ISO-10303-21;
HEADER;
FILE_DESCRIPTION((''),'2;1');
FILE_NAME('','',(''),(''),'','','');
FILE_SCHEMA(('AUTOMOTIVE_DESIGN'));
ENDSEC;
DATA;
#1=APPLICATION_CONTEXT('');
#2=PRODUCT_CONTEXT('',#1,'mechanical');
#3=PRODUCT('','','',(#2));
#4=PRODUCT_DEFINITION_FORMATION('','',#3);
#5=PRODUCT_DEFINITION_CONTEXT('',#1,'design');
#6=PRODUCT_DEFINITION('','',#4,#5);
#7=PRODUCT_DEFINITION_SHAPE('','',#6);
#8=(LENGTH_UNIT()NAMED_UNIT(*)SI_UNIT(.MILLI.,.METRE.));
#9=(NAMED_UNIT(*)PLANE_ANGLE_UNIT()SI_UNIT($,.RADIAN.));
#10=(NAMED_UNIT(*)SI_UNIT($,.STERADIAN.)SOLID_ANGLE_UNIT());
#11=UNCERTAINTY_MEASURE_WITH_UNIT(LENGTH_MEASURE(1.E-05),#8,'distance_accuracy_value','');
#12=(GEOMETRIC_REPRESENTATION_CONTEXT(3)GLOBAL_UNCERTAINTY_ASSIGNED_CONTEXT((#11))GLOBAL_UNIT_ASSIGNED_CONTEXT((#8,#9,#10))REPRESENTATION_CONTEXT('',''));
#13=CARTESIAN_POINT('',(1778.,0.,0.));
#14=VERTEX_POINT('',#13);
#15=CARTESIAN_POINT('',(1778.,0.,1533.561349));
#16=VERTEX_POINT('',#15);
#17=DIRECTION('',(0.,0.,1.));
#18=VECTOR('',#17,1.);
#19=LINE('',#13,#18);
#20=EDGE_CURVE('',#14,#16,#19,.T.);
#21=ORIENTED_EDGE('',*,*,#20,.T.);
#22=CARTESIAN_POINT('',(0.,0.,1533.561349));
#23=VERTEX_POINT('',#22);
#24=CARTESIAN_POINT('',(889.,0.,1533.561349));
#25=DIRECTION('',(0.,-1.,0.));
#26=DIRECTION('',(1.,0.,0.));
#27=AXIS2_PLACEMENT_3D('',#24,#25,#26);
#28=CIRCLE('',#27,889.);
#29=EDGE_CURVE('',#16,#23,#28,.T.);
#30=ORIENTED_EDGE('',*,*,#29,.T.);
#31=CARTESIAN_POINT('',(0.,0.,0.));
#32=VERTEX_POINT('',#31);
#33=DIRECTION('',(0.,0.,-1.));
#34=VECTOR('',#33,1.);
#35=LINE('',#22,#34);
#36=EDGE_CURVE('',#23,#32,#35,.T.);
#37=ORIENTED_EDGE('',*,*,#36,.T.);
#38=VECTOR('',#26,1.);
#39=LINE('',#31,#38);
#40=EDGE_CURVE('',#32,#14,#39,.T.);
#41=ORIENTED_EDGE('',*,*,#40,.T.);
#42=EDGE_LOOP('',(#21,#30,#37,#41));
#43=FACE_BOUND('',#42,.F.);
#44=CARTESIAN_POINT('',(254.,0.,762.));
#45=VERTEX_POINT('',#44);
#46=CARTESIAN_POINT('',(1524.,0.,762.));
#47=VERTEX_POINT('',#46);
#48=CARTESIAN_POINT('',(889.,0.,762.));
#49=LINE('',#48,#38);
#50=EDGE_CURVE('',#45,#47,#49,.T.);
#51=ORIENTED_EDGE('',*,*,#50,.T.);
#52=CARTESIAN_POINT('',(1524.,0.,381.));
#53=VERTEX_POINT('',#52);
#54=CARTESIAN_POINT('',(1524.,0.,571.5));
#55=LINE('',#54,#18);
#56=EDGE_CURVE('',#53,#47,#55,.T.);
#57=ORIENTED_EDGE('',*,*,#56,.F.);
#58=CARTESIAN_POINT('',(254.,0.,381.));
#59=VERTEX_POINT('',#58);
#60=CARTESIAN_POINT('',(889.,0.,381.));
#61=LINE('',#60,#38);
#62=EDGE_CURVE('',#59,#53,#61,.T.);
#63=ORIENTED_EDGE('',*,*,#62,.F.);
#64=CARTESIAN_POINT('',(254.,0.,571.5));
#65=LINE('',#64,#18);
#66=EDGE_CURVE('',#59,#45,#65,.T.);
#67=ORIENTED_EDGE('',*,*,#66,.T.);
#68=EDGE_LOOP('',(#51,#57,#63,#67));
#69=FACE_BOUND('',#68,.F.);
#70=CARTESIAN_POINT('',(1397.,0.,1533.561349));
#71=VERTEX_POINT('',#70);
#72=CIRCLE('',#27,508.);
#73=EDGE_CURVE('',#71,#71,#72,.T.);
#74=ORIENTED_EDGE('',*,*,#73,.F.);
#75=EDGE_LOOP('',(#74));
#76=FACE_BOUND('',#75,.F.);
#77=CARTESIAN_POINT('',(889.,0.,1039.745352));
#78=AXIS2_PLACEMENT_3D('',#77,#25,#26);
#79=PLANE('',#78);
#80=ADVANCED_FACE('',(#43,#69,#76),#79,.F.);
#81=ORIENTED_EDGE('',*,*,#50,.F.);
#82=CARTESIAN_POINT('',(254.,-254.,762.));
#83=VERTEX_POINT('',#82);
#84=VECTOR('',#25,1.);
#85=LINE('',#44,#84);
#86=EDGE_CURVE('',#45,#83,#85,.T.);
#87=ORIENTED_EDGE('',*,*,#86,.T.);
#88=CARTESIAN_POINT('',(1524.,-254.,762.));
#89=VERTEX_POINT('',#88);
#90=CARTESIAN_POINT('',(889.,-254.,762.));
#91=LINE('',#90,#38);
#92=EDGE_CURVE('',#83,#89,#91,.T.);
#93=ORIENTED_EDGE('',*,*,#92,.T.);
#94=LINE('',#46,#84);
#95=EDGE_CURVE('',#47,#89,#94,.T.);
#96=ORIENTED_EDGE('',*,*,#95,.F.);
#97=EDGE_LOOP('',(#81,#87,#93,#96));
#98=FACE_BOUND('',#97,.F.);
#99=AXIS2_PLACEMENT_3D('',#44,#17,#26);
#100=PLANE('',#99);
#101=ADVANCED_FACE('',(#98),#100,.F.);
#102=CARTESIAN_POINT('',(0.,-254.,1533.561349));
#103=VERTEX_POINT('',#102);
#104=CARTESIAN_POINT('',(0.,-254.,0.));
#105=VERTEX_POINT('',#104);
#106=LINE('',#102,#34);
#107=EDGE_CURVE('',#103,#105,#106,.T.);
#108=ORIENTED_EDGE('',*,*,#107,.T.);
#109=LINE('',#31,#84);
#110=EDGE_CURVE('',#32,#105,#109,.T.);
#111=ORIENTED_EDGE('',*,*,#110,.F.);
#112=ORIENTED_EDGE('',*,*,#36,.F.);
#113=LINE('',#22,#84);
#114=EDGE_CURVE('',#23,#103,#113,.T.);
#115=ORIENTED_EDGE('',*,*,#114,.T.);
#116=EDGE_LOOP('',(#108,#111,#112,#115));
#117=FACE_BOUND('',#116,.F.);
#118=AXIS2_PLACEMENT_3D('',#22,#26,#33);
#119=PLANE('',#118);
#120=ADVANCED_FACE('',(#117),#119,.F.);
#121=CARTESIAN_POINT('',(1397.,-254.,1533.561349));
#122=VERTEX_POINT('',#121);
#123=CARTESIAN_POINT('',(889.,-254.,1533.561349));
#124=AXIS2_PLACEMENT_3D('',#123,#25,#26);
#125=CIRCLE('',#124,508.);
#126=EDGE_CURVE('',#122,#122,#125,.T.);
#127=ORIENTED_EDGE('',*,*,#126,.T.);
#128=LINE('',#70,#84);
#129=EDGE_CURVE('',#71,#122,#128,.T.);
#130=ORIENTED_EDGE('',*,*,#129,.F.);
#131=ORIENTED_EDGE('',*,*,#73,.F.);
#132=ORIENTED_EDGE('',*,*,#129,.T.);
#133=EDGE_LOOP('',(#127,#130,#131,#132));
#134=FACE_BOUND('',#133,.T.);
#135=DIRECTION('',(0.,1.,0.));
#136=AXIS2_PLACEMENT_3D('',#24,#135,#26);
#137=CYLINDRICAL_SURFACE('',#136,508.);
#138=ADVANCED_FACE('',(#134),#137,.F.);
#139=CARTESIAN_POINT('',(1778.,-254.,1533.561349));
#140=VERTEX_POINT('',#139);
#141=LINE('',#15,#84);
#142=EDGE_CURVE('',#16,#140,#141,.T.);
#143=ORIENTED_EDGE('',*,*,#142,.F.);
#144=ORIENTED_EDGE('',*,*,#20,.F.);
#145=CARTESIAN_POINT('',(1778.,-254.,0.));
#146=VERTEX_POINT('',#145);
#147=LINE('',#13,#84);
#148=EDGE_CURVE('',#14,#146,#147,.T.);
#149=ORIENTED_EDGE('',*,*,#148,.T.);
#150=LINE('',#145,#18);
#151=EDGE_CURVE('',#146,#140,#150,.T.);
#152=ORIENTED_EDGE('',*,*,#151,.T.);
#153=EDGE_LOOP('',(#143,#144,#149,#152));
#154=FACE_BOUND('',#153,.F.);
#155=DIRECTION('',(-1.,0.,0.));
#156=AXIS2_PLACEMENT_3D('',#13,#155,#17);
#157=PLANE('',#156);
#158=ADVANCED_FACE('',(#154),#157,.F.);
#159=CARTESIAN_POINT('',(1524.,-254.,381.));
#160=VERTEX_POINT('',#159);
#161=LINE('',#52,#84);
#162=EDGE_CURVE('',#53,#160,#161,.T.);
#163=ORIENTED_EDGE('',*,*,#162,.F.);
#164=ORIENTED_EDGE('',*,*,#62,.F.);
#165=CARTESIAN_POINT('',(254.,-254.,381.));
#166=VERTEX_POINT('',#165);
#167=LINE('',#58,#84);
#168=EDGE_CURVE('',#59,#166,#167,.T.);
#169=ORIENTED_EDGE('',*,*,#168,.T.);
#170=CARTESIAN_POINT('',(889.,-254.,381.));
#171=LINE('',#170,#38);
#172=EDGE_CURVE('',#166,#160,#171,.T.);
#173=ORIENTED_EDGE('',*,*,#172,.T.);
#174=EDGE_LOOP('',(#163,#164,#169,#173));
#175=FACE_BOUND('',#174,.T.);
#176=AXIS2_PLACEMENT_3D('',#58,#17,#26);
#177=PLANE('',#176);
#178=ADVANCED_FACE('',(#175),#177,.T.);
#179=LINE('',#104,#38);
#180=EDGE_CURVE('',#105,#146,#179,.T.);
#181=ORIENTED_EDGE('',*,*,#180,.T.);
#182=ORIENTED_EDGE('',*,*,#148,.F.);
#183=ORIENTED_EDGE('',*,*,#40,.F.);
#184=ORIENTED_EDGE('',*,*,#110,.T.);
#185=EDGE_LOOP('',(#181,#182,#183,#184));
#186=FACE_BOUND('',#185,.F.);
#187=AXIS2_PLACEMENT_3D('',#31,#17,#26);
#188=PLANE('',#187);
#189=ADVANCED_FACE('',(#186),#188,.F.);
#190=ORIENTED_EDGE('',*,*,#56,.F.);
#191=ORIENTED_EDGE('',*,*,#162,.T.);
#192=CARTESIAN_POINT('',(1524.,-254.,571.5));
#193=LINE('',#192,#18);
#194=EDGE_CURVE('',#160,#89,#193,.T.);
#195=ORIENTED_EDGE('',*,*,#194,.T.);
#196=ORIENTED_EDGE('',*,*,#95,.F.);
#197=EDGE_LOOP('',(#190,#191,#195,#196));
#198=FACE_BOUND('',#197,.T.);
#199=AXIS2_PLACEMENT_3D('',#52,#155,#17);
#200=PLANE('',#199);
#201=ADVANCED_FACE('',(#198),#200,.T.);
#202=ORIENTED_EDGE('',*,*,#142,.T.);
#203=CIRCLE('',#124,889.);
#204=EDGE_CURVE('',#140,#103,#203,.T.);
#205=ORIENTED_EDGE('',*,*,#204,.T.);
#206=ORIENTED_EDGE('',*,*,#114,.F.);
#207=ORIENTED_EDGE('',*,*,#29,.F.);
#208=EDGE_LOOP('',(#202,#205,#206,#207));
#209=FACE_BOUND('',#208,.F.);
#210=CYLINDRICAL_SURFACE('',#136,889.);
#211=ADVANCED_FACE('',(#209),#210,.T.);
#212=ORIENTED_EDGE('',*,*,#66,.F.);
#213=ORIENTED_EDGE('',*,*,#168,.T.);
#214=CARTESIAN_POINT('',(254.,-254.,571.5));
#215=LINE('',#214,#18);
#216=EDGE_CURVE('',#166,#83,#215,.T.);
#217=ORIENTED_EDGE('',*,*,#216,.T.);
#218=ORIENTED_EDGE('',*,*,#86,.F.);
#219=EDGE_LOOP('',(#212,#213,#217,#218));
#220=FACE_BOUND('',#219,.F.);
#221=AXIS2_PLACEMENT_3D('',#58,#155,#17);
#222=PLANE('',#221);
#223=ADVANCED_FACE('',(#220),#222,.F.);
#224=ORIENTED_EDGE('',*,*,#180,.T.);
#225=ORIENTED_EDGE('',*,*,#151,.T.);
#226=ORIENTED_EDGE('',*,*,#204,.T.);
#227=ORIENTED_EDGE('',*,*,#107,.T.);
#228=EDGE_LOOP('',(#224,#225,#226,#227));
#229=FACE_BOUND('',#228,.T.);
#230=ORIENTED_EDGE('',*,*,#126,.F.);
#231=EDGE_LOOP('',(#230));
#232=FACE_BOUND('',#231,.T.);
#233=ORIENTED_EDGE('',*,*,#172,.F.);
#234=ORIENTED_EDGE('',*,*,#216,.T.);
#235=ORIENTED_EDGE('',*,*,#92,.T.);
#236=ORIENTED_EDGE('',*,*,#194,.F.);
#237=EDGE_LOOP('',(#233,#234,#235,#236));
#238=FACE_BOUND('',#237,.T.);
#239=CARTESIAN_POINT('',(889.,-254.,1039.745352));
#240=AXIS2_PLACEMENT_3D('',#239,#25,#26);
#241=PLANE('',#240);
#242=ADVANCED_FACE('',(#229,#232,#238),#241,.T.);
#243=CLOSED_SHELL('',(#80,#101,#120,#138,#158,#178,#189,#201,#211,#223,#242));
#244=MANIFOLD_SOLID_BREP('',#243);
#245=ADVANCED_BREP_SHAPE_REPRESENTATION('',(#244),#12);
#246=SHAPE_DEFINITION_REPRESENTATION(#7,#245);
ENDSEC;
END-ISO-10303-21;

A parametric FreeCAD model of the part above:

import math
import FreeCAD as App
import Part
import Sketcher

V = App.Vector
Q = App.Units.Quantity

doc = App.newDocument("Part")
params = doc.addObject("Spreadsheet::Sheet", "Params")
for row, (alias, value) in enumerate([
    ("sketch1_diameter", "40 in"),
    ("sketch1_radius", "35 in"),
    ("sketch1_width", "50 in"),
    ("sketch1_height", "15 in"),
    ("pad1_length", "10 in"),
], start=1):
    params.set(f"A{row}", alias)
    params.set(f"B{row}", "=" + value)
    params.setAlias(f"B{row}", alias)

body = doc.addObject("PartDesign::Body", "Body")

# Sketch on XZ plane
sketch1 = body.newObject("Sketcher::SketchObject", "Sketch")
sketch1.AttachmentSupport = (doc.getObject("XZ_Plane"), [""])
sketch1.MapMode = "FlatFace"
sketch1.addGeometry([
    Part.LineSegment(V(0, 0, 0), V(1778, 0, 0)),  # 0
    Part.LineSegment(V(1778, 0, 0), V(1778, 1534, 0)),  # 1
    Part.ArcOfCircle(Part.Circle(V(889, 1534, 0), V(0, 0, 1), 889), math.radians(0), math.radians(180)),  # 2
    Part.LineSegment(V(0, 1534, 0), V(0, 0, 0)),  # 3
    Part.LineSegment(V(1524, 381, 0), V(254, 381, 0)),  # 4
    Part.LineSegment(V(254, 381, 0), V(254, 762, 0)),  # 5
    Part.LineSegment(V(254, 762, 0), V(1524, 762, 0)),  # 6
    Part.LineSegment(V(1524, 762, 0), V(1524, 381, 0)),  # 7
    Part.Circle(V(889, 1534, 0), V(0, 0, 1), 508),  # 8
], False)
sketch1.addConstraint([
    Sketcher.Constraint("Coincident", 0, 2, 1, 1),
    Sketcher.Constraint("Coincident", 1, 2, 2, 1),
    Sketcher.Constraint("Coincident", 2, 2, 3, 1),
    Sketcher.Constraint("Coincident", 3, 2, 0, 1),
    Sketcher.Constraint("Coincident", 4, 2, 5, 1),
    Sketcher.Constraint("Coincident", 5, 2, 6, 1),
    Sketcher.Constraint("Coincident", 6, 2, 7, 1),
    Sketcher.Constraint("Coincident", 7, 2, 4, 1),
    Sketcher.Constraint("Horizontal", 0),
    Sketcher.Constraint("Vertical", 1),
    Sketcher.Constraint("Vertical", 3),
    Sketcher.Constraint("Horizontal", 4),
    Sketcher.Constraint("Vertical", 5),
    Sketcher.Constraint("Horizontal", 6),
    Sketcher.Constraint("Vertical", 7),
    Sketcher.Constraint("Coincident", 3, 2, -1, 1),
    Sketcher.Constraint("Coincident", 8, 3, 2, 3),
    Sketcher.Constraint("Horizontal", 8, 3, 1, 2),
    Sketcher.Constraint("Equal", 1, 3),
    Sketcher.Constraint("Diameter", 8, Q("40 in")),
    Sketcher.Constraint("Radius", 2, Q("35 in")),
    Sketcher.Constraint("DistanceX", 4, 2, 4, 1, Q("50 in")),
    Sketcher.Constraint("DistanceY", 5, 1, 5, 2, Q("15 in")),
    Sketcher.Constraint("DistanceX", -1, 1, 4, 2, Q("10 in")),
    Sketcher.Constraint("DistanceY", -1, 1, 4, 2, Q("15 in")),
    Sketcher.Constraint("DistanceY", 1, 1, 1, 2, 1533.561349),
])
sketch1.setExpression("Constraints[19]", "Params.sketch1_diameter")
sketch1.setExpression("Constraints[20]", "Params.sketch1_radius")
sketch1.setExpression("Constraints[21]", "Params.sketch1_width")
sketch1.setExpression("Constraints[22]", "Params.sketch1_height")
pad1 = body.newObject("PartDesign::Pad", "Pad")
pad1.Profile = sketch1
pad1.setExpression("Length", "Params.pad1_length")

doc.recompute()
